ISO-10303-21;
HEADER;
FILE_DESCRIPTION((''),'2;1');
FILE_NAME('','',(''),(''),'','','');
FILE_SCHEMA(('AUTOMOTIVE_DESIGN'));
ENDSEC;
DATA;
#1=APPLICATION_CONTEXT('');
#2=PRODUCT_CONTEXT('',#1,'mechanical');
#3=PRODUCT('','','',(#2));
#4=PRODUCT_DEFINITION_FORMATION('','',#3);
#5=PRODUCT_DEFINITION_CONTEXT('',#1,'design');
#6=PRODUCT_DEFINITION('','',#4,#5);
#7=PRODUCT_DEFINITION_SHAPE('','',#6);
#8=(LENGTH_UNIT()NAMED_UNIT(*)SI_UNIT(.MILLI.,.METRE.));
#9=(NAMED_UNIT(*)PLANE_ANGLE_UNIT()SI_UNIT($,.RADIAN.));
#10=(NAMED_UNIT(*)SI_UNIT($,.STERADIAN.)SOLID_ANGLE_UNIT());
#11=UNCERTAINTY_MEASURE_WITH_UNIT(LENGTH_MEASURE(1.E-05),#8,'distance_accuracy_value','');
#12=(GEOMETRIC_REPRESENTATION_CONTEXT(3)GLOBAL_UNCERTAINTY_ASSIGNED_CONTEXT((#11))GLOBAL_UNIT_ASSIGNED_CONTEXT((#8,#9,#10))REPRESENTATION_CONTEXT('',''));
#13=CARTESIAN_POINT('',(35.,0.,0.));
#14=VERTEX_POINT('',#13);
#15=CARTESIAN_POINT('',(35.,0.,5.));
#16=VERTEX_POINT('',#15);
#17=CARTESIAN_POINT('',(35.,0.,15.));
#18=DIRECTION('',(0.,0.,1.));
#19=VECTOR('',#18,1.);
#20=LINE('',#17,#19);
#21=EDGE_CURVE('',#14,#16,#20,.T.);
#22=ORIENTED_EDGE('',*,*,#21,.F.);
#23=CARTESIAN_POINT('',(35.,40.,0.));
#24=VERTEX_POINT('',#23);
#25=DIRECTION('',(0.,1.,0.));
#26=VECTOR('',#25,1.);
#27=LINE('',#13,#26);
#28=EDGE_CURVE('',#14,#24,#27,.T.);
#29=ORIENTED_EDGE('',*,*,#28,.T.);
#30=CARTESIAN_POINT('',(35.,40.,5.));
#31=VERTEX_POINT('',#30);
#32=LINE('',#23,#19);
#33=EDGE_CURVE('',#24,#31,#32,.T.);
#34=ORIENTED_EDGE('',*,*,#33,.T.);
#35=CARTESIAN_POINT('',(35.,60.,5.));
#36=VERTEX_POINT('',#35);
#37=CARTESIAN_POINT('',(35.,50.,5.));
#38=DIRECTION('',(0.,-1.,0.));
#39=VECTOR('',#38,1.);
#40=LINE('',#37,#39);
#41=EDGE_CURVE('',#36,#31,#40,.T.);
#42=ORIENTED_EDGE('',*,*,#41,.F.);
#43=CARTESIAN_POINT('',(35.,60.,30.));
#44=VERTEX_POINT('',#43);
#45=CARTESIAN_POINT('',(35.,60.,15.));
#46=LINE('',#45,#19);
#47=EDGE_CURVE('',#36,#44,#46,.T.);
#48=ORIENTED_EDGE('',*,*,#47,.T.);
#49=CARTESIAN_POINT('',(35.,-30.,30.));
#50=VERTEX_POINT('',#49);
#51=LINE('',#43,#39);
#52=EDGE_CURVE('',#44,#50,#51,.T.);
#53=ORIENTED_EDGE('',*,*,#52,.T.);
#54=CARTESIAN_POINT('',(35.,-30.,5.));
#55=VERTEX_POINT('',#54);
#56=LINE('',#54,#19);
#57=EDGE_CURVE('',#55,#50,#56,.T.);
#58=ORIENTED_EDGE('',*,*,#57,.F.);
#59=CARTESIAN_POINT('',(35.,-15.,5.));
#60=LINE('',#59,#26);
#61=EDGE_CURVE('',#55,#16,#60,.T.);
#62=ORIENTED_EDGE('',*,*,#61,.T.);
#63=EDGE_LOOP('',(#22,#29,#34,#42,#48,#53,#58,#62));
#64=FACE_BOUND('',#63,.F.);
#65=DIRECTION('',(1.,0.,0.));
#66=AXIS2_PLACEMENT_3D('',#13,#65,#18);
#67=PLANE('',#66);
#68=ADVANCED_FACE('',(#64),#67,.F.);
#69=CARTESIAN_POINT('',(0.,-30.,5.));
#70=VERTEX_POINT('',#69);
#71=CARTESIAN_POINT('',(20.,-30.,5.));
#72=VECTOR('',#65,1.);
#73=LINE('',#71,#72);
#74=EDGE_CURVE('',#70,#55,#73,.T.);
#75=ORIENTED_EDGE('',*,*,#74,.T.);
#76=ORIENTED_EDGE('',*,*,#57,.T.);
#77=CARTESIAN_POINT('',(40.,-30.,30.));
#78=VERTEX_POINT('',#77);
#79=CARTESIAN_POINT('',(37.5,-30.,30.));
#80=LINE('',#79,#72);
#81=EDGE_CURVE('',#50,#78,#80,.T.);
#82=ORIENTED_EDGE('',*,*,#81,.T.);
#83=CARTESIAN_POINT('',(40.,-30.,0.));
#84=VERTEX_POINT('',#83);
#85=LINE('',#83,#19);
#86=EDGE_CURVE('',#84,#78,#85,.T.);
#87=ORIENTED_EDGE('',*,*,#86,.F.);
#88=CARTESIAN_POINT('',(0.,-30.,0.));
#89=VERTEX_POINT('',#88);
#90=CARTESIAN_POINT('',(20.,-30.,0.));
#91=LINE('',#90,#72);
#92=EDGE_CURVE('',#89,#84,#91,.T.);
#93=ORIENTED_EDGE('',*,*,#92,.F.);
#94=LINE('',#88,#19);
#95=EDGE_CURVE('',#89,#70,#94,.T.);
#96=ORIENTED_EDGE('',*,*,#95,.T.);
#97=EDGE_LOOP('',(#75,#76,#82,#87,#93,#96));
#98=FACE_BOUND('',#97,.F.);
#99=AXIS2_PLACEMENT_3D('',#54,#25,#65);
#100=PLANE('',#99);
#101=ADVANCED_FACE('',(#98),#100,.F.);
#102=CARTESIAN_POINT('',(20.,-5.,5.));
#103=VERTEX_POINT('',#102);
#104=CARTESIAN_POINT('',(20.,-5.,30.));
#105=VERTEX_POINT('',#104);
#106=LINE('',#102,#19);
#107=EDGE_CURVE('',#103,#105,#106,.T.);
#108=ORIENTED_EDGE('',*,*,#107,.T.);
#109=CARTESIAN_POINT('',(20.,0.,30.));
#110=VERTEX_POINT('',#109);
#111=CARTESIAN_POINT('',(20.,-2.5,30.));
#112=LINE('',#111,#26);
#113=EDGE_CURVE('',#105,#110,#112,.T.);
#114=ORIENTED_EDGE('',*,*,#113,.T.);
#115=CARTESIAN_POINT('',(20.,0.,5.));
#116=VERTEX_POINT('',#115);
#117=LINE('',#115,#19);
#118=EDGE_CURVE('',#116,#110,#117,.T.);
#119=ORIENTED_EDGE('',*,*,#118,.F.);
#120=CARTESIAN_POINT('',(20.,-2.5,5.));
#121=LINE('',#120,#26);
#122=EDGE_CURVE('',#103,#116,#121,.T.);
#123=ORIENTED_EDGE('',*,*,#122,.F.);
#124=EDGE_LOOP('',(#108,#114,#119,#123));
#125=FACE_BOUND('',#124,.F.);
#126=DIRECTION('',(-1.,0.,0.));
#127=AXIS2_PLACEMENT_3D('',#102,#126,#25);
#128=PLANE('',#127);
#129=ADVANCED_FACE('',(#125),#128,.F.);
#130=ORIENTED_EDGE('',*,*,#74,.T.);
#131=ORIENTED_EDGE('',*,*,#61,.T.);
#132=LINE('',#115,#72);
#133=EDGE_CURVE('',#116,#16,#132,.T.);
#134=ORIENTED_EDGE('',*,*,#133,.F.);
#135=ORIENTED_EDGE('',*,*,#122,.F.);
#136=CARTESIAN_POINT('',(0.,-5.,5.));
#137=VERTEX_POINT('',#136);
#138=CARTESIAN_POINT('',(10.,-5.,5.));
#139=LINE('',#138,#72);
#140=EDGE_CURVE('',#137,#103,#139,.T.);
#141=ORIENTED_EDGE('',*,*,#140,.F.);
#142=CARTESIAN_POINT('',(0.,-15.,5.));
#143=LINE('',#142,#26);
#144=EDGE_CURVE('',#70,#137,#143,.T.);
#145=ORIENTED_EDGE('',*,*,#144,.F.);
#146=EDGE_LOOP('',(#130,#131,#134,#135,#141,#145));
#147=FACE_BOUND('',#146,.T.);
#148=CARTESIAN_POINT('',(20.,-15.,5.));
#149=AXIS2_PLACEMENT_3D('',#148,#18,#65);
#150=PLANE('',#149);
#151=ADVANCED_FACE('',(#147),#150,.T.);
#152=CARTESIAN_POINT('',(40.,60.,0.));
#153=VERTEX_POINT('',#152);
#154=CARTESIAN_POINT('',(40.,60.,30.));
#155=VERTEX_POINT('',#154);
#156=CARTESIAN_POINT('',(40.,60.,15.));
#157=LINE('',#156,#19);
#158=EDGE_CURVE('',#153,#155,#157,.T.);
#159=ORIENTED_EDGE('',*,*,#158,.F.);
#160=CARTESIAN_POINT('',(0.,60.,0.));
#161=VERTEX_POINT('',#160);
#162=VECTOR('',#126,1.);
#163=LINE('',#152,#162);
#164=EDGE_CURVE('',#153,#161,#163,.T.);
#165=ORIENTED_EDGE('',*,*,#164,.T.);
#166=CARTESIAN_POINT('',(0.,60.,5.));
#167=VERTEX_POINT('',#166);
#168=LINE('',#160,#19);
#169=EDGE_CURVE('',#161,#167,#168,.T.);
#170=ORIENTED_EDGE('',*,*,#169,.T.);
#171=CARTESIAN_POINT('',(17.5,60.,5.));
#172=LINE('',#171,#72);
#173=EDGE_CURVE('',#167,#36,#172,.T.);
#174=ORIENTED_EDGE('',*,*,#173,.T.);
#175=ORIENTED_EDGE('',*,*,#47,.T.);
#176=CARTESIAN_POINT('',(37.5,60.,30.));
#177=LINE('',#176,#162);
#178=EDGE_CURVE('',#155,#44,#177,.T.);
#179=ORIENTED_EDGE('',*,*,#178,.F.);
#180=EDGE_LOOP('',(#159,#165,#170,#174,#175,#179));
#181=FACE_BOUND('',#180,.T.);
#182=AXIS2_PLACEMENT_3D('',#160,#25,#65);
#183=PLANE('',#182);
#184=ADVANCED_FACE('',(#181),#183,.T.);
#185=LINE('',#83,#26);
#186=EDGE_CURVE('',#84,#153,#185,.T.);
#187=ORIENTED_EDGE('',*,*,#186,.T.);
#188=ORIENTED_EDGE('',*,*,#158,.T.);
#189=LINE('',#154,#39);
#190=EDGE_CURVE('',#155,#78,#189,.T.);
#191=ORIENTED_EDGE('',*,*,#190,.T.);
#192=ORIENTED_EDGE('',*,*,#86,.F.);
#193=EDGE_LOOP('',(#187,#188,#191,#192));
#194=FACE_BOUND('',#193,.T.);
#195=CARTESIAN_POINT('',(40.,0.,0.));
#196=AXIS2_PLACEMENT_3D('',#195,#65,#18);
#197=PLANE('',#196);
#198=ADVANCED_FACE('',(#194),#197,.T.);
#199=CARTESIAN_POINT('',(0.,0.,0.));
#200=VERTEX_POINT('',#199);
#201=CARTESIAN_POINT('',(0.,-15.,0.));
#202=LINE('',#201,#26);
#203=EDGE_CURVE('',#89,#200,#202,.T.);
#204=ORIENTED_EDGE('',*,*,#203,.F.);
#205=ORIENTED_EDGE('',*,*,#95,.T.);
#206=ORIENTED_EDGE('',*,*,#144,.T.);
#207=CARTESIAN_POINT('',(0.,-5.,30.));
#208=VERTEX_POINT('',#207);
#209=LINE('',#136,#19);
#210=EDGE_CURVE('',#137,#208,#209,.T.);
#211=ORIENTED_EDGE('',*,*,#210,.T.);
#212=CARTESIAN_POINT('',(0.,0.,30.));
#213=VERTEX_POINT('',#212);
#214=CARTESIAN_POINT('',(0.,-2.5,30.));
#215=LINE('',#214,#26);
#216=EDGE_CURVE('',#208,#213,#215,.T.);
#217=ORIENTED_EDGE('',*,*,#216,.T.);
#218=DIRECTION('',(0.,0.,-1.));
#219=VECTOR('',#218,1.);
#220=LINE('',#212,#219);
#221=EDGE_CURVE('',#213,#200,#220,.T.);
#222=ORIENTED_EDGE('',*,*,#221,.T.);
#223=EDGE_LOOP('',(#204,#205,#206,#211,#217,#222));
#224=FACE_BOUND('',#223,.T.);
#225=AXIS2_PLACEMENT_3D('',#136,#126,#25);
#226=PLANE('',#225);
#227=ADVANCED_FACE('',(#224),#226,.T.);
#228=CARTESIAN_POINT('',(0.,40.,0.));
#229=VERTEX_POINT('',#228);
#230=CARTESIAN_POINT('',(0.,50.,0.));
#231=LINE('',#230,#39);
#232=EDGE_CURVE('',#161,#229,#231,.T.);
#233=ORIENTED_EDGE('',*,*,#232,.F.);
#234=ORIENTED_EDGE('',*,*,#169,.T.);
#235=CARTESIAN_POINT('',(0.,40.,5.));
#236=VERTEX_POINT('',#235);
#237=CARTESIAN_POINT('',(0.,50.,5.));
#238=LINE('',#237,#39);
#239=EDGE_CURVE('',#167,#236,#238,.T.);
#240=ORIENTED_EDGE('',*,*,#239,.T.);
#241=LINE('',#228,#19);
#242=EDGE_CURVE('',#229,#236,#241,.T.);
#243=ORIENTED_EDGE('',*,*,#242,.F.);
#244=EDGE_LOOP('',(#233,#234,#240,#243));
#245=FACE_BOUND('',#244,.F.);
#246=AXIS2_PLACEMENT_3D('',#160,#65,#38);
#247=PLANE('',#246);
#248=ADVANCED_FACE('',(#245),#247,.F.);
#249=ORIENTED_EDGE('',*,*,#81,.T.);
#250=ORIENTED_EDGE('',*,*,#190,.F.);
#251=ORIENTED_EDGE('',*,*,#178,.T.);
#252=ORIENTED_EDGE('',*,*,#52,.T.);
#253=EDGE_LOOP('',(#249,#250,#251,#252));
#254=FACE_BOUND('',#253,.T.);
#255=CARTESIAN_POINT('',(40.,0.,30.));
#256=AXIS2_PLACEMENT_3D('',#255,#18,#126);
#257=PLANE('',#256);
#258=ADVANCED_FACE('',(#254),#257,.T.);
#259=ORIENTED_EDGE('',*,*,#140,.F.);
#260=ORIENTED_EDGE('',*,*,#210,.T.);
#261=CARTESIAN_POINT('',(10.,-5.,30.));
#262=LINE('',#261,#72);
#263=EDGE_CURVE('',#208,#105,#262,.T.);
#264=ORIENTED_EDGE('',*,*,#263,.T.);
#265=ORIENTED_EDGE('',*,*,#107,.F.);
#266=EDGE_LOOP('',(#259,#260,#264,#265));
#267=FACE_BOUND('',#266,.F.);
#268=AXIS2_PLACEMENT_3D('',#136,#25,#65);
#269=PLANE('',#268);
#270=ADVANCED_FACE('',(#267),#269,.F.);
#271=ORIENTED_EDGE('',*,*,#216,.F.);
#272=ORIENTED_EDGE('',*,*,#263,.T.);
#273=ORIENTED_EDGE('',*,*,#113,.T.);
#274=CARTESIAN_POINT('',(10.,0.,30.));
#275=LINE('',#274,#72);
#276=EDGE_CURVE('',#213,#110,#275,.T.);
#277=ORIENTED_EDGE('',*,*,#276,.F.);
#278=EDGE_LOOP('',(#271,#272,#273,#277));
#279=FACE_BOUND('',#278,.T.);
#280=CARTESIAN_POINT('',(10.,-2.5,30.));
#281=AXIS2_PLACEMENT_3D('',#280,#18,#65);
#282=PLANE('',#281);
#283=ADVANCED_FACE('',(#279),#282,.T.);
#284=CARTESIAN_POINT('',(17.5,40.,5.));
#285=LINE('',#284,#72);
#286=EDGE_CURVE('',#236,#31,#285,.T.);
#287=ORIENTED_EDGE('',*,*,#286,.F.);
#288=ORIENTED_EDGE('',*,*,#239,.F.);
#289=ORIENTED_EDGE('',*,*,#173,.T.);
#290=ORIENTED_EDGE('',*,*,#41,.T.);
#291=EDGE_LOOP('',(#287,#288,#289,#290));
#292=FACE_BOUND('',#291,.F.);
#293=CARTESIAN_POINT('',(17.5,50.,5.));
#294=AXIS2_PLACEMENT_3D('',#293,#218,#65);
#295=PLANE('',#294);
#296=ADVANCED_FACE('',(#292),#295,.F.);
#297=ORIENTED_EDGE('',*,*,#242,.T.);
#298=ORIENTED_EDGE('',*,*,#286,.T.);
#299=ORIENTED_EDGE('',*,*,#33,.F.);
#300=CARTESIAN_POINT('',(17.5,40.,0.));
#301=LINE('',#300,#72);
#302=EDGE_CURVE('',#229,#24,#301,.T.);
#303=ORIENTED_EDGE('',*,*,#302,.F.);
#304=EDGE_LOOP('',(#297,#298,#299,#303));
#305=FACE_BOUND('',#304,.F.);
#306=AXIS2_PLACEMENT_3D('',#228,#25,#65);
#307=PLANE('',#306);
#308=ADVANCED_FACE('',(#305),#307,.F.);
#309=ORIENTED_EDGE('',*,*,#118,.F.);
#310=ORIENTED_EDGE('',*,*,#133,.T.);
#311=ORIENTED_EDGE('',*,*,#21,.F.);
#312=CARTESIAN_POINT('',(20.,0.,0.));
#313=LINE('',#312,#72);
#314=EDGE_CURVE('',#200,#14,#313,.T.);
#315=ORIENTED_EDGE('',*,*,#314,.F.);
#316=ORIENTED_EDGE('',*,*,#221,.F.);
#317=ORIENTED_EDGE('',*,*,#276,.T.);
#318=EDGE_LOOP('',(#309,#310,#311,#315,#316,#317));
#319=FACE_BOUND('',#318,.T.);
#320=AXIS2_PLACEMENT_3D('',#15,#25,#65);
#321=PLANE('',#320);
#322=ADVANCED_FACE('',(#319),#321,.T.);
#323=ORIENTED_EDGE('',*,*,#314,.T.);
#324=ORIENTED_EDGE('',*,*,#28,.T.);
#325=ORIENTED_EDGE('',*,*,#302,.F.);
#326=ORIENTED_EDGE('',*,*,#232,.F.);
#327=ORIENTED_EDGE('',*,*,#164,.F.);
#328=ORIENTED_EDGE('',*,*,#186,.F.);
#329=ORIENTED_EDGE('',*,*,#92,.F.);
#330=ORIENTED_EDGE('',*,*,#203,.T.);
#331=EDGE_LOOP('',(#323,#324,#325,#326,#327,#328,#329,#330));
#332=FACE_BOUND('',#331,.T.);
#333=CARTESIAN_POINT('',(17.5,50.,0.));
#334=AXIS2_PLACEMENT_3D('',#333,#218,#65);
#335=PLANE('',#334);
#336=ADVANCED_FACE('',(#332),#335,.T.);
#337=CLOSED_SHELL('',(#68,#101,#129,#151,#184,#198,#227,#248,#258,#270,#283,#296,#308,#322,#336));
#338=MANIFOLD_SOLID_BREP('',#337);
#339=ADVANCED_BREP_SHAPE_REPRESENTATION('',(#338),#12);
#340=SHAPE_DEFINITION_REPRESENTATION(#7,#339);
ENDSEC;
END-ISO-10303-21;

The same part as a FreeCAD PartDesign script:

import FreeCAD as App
import Part
import Sketcher

V = App.Vector

doc = App.newDocument("Part")
body = doc.addObject("PartDesign::Body", "Body")

# Sketch on XY plane
sketch1 = doc.addObject("Sketcher::SketchObject", "Sketch")
body.addObject(sketch1)
sketch1.AttachmentSupport = (doc.XY_Plane, [""])
sketch1.MapMode = "FlatFace"
sketch1.addGeometry(Part.LineSegment(V(0, 0, 0), V(0, -30, 0)), False)
sketch1.addGeometry(Part.LineSegment(V(0, -30, 0), V(40, -30, 0)), False)
sketch1.addGeometry(Part.LineSegment(V(40, -30, 0), V(40, 0, 0)), False)
sketch1.addGeometry(Part.LineSegment(V(40, 0, 0), V(0, 0, 0)), False)
sketch1.addConstraint(Sketcher.Constraint("Coincident", 0, 2, 1, 1))
sketch1.addConstraint(Sketcher.Constraint("Coincident", 1, 2, 2, 1))
sketch1.addConstraint(Sketcher.Constraint("Coincident", 2, 2, 3, 1))
sketch1.addConstraint(Sketcher.Constraint("Coincident", 3, 2, 0, 1))
sketch1.addConstraint(Sketcher.Constraint("Vertical", 0))
sketch1.addConstraint(Sketcher.Constraint("Horizontal", 1))
sketch1.addConstraint(Sketcher.Constraint("Vertical", 2))
sketch1.addConstraint(Sketcher.Constraint("Horizontal", 3))
sketch1.addConstraint(Sketcher.Constraint("Coincident", 3, 2, -1, 1))
sketch1.addConstraint(Sketcher.Constraint("DistanceX", 1, 1, 1, 2, 40.0))
sketch1.addConstraint(Sketcher.Constraint("DistanceY", 0, 2, 0, 1, 30.0))
pad1 = doc.addObject("PartDesign::Pad", "Pad")
body.addObject(pad1)
pad1.Profile = sketch1
pad1.Length = 5

# Sketch on XY plane
sketch2 = doc.addObject("Sketcher::SketchObject", "Sketch001")
body.addObject(sketch2)
sketch2.AttachmentSupport = (doc.XY_Plane, [""])
sketch2.MapMode = "FlatFace"
sketch2.AttachmentOffset = App.Placement(V(0, 0, 5), App.Rotation())
sketch2.addGeometry(Part.LineSegment(V(0, 0, 0), V(0, -5, 0)), False)
sketch2.addGeometry(Part.LineSegment(V(0, -5, 0), V(20, -5, 0)), False)
sketch2.addGeometry(Part.LineSegment(V(20, -5, 0), V(20, 0, 0)), False)
sketch2.addGeometry(Part.LineSegment(V(20, 0, 0), V(0, 0, 0)), False)
sketch2.addConstraint(Sketcher.Constraint("Coincident", 0, 2, 1, 1))
sketch2.addConstraint(Sketcher.Constraint("Coincident", 1, 2, 2, 1))
sketch2.addConstraint(Sketcher.Constraint("Coincident", 2, 2, 3, 1))
sketch2.addConstraint(Sketcher.Constraint("Coincident", 3, 2, 0, 1))
sketch2.addConstraint(Sketcher.Constraint("Vertical", 0))
sketch2.addConstraint(Sketcher.Constraint("Horizontal", 1))
sketch2.addConstraint(Sketcher.Constraint("Vertical", 2))
sketch2.addConstraint(Sketcher.Constraint("Horizontal", 3))
sketch2.addConstraint(Sketcher.Constraint("Coincident", 3, 2, -1, 1))
sketch2.addConstraint(Sketcher.Constraint("DistanceX", 1, 1, 1, 2, 20.0))
sketch2.addConstraint(Sketcher.Constraint("DistanceY", 0, 2, 0, 1, 5.0))
pad2 = doc.addObject("PartDesign::Pad", "Pad001")
body.addObject(pad2)
pad2.Profile = sketch2
pad2.Length = 25

# Sketch on XY plane
sketch3 = doc.addObject("Sketcher::SketchObject", "Sketch002")
body.addObject(sketch3)
sketch3.AttachmentSupport = (doc.XY_Plane, [""])
sketch3.MapMode = "FlatFace"
sketch3.AttachmentOffset = App.Placement(V(0, 0, 5), App.Rotation())
sketch3.addGeometry(Part.LineSegment(V(35, 0, 0), V(35, -30, 0)), False)
sketch3.addGeometry(Part.LineSegment(V(35, -30, 0), V(40, -30, 0)), False)
sketch3.addGeometry(Part.LineSegment(V(40, -30, 0), V(40, 0, 0)), False)
sketch3.addGeometry(Part.LineSegment(V(40, 0, 0), V(35, 0, 0)), False)
sketch3.addConstraint(Sketcher.Constraint("Coincident", 0, 2, 1, 1))
sketch3.addConstraint(Sketcher.Constraint("Coincident", 1, 2, 2, 1))
sketch3.addConstraint(Sketcher.Constraint("Coincident", 2, 2, 3, 1))
sketch3.addConstraint(Sketcher.Constraint("Coincident", 3, 2, 0, 1))
sketch3.addConstraint(Sketcher.Constraint("Vertical", 0))
sketch3.addConstraint(Sketcher.Constraint("Horizontal", 1))
sketch3.addConstraint(Sketcher.Constraint("Vertical", 2))
sketch3.addConstraint(Sketcher.Constraint("Horizontal", 3))
sketch3.addConstraint(Sketcher.Constraint("PointOnObject", 2, 2, -1))
sketch3.addConstraint(Sketcher.Constraint("DistanceX", 1, 1, 1, 2, 5.0))
sketch3.addConstraint(Sketcher.Constraint("DistanceY", 0, 2, 0, 1, 30.0))
sketch3.addConstraint(Sketcher.Constraint("DistanceX", -1, 1, 0, 2, 35.0))
pad3 = doc.addObject("PartDesign::Pad", "Pad002")
body.addObject(pad3)
pad3.Profile = sketch3
pad3.Length = 25

# Sketch on XZ plane
sketch4 = doc.addObject("Sketcher::SketchObject", "Sketch003")
body.addObject(sketch4)
sketch4.AttachmentSupport = (doc.XZ_Plane, [""])
sketch4.MapMode = "FlatFace"
sketch4.addGeometry(Part.LineSegment(V(40, 30, 0), V(40, 0, 0)), False)
sketch4.addGeometry(Part.LineSegment(V(40, 0, 0), V(35, 0, 0)), False)
sketch4.addGeometry(Part.LineSegment(V(35, 0, 0), V(35, 30, 0)), False)
sketch4.addGeometry(Part.LineSegment(V(35, 30, 0), V(40, 30, 0)), False)
sketch4.addConstraint(Sketcher.Constraint("Coincident", 0, 2, 1, 1))
sketch4.addConstraint(Sketcher.Constraint("Coincident", 1, 2, 2, 1))
sketch4.addConstraint(Sketcher.Constraint("Coincident", 2, 2, 3, 1))
sketch4.addConstraint(Sketcher.Constraint("Coincident", 3, 2, 0, 1))
sketch4.addConstraint(Sketcher.Constraint("Vertical", 0))
sketch4.addConstraint(Sketcher.Constraint("Horizontal", 1))
sketch4.addConstraint(Sketcher.Constraint("Vertical", 2))
sketch4.addConstraint(Sketcher.Constraint("Horizontal", 3))
sketch4.addConstraint(Sketcher.Constraint("PointOnObject", 0, 2, -1))
sketch4.addConstraint(Sketcher.Constraint("DistanceX", 1, 2, 1, 1, 5.0))
sketch4.addConstraint(Sketcher.Constraint("DistanceY", 0, 2, 0, 1, 30.0))
sketch4.addConstraint(Sketcher.Constraint("DistanceX", -1, 1, 0, 2, 40.0))
pad4 = doc.addObject("PartDesign::Pad", "Pad003")
body.addObject(pad4)
pad4.Profile = sketch4
pad4.Length = 60
pad4.Reversed = True

# Sketch on XY plane
sketch5 = doc.addObject("Sketcher::SketchObject", "Sketch004")
body.addObject(sketch5)
sketch5.AttachmentSupport = (doc.XY_Plane, [""])
sketch5.MapMode = "FlatFace"
sketch5.addGeometry(Part.LineSegment(V(0, 40, 0), V(0, 60, 0)), False)
sketch5.addGeometry(Part.LineSegment(V(0, 60, 0), V(35, 60, 0)), False)
sketch5.addGeometry(Part.LineSegment(V(35, 60, 0), V(35, 40, 0)), False)
sketch5.addGeometry(Part.LineSegment(V(35, 40, 0), V(0, 40, 0)), False)
sketch5.addConstraint(Sketcher.Constraint("Coincident", 0, 2, 1, 1))
sketch5.addConstraint(Sketcher.Constraint("Coincident", 1, 2, 2, 1))
sketch5.addConstraint(Sketcher.Constraint("Coincident", 2, 2, 3, 1))
sketch5.addConstraint(Sketcher.Constraint("Coincident", 3, 2, 0, 1))
sketch5.addConstraint(Sketcher.Constraint("Vertical", 0))
sketch5.addConstraint(Sketcher.Constraint("Horizontal", 1))
sketch5.addConstraint(Sketcher.Constraint("Vertical", 2))
sketch5.addConstraint(Sketcher.Constraint("Horizontal", 3))
sketch5.addConstraint(Sketcher.Constraint("PointOnObject", 0, 2, -2))
sketch5.addConstraint(Sketcher.Constraint("DistanceX", 1, 1, 1, 2, 35.0))
sketch5.addConstraint(Sketcher.Constraint("DistanceY", 0, 1, 0, 2, 20.0))
sketch5.addConstraint(Sketcher.Constraint("DistanceY", -1, 1, 0, 2, 60.0))
pad5 = doc.addObject("PartDesign::Pad", "Pad004")
body.addObject(pad5)
pad5.Profile = sketch5
pad5.Length = 5

doc.recompute()
